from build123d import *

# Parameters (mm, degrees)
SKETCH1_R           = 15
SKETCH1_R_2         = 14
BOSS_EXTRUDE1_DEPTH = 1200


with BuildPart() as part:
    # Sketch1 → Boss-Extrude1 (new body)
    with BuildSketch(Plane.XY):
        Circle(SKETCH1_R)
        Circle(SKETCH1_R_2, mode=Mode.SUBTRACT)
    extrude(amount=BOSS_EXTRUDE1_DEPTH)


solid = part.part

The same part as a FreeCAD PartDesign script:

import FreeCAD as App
import Part
import Sketcher

V = App.Vector
Q = App.Units.Quantity

doc = App.newDocument("Part")
params = doc.addObject("Spreadsheet::Sheet", "Params")
for row, (alias, value) in enumerate([
    ("sketch1_diameter", "30 mm"),
    ("sketch1_diameter2", "28 mm"),
    ("pad1_length", "1200 mm"),
], start=1):
    params.set(f"A{row}", alias)
    params.set(f"B{row}", "=" + value)
    params.setAlias(f"B{row}", alias)

body = doc.addObject("PartDesign::Body", "Body")

sketch1 = body.newObject("Sketcher::SketchObject", "Sketch")
sketch1.AttachmentSupport = (doc.getObject("XY_Plane"), [""])
sketch1.MapMode = "FlatFace"
sketch1.addGeometry([
    Part.Circle(V(0, 0, 0), V(0, 0, 1), 15),
    Part.Circle(V(0, 0, 0), V(0, 0, 1), 14),
], False)
sketch1.addConstraint([
    Sketcher.Constraint("Coincident", 0, 3, -1, 1),
    Sketcher.Constraint("Coincident", 1, 3, -1, 1),
    Sketcher.Constraint("Diameter", 0, Q("30 mm")),
    Sketcher.Constraint("Diameter", 1, Q("28 mm")),
])
sketch1.setExpression("Constraints[2]", "Params.sketch1_diameter")
sketch1.setExpression("Constraints[3]", "Params.sketch1_diameter2")
pad1 = body.newObject("PartDesign::Pad", "Pad")
pad1.Profile = sketch1
pad1.setExpression("Length", "Params.pad1_length")

doc.recompute()
